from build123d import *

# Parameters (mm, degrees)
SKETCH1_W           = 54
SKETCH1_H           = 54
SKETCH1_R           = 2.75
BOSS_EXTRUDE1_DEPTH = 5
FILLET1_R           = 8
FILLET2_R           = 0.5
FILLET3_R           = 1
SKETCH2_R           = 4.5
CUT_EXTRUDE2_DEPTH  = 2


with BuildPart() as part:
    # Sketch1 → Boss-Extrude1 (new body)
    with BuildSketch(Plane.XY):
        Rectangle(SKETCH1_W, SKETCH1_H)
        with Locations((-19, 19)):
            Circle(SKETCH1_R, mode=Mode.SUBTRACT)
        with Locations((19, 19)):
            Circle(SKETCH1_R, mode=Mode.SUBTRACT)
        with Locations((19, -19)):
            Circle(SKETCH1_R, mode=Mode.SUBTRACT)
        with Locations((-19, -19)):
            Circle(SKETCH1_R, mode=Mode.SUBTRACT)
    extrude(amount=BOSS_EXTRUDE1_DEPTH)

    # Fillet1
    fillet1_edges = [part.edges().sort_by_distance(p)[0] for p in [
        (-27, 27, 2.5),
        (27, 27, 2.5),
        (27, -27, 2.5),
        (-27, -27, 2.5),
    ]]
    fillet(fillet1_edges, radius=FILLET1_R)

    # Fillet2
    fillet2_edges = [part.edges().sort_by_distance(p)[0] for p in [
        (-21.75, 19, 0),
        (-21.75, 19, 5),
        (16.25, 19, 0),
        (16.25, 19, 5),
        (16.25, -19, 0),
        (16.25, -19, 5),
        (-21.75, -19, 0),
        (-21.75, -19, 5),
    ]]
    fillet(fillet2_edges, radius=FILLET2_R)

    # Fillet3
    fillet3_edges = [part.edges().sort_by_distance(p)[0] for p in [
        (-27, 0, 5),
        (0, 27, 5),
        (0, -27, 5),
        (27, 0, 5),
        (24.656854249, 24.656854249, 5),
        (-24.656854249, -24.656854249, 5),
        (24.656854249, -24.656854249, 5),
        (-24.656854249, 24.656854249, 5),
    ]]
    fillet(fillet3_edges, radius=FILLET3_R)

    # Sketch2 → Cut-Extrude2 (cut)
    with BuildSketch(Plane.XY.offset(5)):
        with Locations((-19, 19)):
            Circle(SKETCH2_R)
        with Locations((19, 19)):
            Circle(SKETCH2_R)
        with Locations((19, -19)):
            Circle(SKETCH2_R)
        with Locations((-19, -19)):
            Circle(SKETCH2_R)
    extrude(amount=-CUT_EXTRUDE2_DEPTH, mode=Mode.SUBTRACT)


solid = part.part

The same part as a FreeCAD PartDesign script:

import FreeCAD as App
import Part
import Sketcher

V = App.Vector


def edges_at(feature, points):
    """Names of the edges that pass closest to the given points."""
    edges = feature.Shape.Edges
    near = lambda p: min(range(len(edges)), key=lambda i: edges[i].distToShape(Part.Vertex(*p))[0])
    return sorted({f"Edge{near(p) + 1}" for p in points})

doc = App.newDocument("Part")
params = doc.addObject("Spreadsheet::Sheet", "Params")
for row, (alias, value) in enumerate([
    ("sketch1_diameter", "5.5 mm"),
    ("sketch1_width", "54 mm"),
    ("pad1_length", "5 mm"),
    ("fillet_radius", "8 mm"),
    ("fillet2_radius", "0.5 mm"),
    ("fillet3_radius", "1 mm"),
    ("sketch2_diameter", "9 mm"),
    ("pocket1_length", "2 mm"),
], start=1):
    params.set(f"A{row}", alias)
    params.set(f"B{row}", "=" + value)
    params.setAlias(f"B{row}", alias)

body = doc.addObject("PartDesign::Body", "Body")

# Sketch on XY plane
sketch1 = body.newObject("Sketcher::SketchObject", "Sketch")
sketch1.AttachmentSupport = (doc.getObject("XY_Plane"), [""])
sketch1.MapMode = "FlatFace"
sketch1.addGeometry([
    Part.LineSegment(V(-27, 27, 0), V(-27, -27, 0)),  # 0
    Part.LineSegment(V(-27, -27, 0), V(27, -27, 0)),  # 1
    Part.LineSegment(V(27, -27, 0), V(27, 27, 0)),  # 2
    Part.LineSegment(V(27, 27, 0), V(-27, 27, 0)),  # 3
    Part.Circle(V(-19, -19, 0), V(0, 0, 1), 2.8),  # 4
    Part.Circle(V(19, -19, 0), V(0, 0, 1), 2.8),  # 5
    Part.Circle(V(-19, 19, 0), V(0, 0, 1), 2.8),  # 6
    Part.Circle(V(19, 19, 0), V(0, 0, 1), 2.8),  # 7
], False)
sketch1.addConstraint([
    Sketcher.Constraint("Coincident", 0, 2, 1, 1),
    Sketcher.Constraint("Coincident", 1, 2, 2, 1),
    Sketcher.Constraint("Coincident", 2, 2, 3, 1),
    Sketcher.Constraint("Coincident", 3, 2, 0, 1),
    Sketcher.Constraint("Vertical", 0),
    Sketcher.Constraint("Horizontal", 1),
    Sketcher.Constraint("Vertical", 2),
    Sketcher.Constraint("Horizontal", 3),
    Sketcher.Constraint("Equal", 4, 5),
    Sketcher.Constraint("Equal", 5, 6),
    Sketcher.Constraint("Equal", 6, 7),
    Sketcher.Constraint("Symmetric", 5, 3, 6, 3, -1, 1),
    Sketcher.Constraint("Symmetric", 4, 3, 7, 3, -1, 1),
    Sketcher.Constraint("Symmetric", 0, 2, 2, 2, -1, 1),
    Sketcher.Constraint("Symmetric", 4, 3, 5, 3, -2),
    Sketcher.Constraint("Equal", 3, 0),
    Sketcher.Constraint("Diameter", 4, 5.5),
    Sketcher.Constraint("DistanceX", 1, 1, 1, 2, 54.0),
    Sketcher.Constraint("DistanceX", 4, 3, -1, 1, 19.0),
    Sketcher.Constraint("DistanceY", 4, 3, -1, 1, 19.0),
])
sketch1.setExpression("Constraints[16]", "Params.sketch1_diameter")
sketch1.setExpression("Constraints[17]", "Params.sketch1_width")
pad1 = body.newObject("PartDesign::Pad", "Pad")
pad1.Profile = sketch1
pad1.setExpression("Length", "Params.pad1_length")
doc.recompute()

fillet = body.newObject("PartDesign::Fillet", "Fillet")
fillet.Base = (pad1, edges_at(pad1, [
    (-27, 27, 2.5),
    (27, 27, 2.5),
    (27, -27, 2.5),
    (-27, -27, 2.5),
]))
fillet.setExpression("Radius", "Params.fillet_radius")
doc.recompute()

fillet2 = body.newObject("PartDesign::Fillet", "Fillet001")
fillet2.Base = (fillet, edges_at(fillet, [
    (-21.75, 19, 0),
    (-21.75, 19, 5),
    (16.25, 19, 0),
    (16.25, 19, 5),
    (16.25, -19, 0),
    (16.25, -19, 5),
    (-21.75, -19, 0),
    (-21.75, -19, 5),
]))
fillet2.setExpression("Radius", "Params.fillet2_radius")
doc.recompute()

fillet3 = body.newObject("PartDesign::Fillet", "Fillet002")
fillet3.Base = (fillet2, edges_at(fillet2, [
    (-27, 0, 5),
    (0, 27, 5),
    (0, -27, 5),
    (27, 0, 5),
    (24.657, 24.657, 5),
    (-24.657, -24.657, 5),
    (24.657, -24.657, 5),
    (-24.657, 24.657, 5),
]))
fillet3.setExpression("Radius", "Params.fillet3_radius")

# Sketch on XY plane
sketch2 = body.newObject("Sketcher::SketchObject", "Sketch001")
sketch2.AttachmentSupport = (doc.getObject("XY_Plane"), [""])
sketch2.MapMode = "FlatFace"
sketch2.AttachmentOffset = App.Placement(V(0, 0, 5), App.Rotation())
sketch2.addGeometry([
    Part.Circle(V(-19, 19, 0), V(0, 0, 1), 4.5),
    Part.Circle(V(19, 19, 0), V(0, 0, 1), 4.5),
    Part.Circle(V(19, -19, 0), V(0, 0, 1), 4.5),
    Part.Circle(V(-19, -19, 0), V(0, 0, 1), 4.5),
], False)
sketch2.addConstraint([
    Sketcher.Constraint("Equal", 0, 1),
    Sketcher.Constraint("Equal", 1, 2),
    Sketcher.Constraint("Equal", 2, 3),
    Sketcher.Constraint("Symmetric", 0, 3, 2, 3, -1, 1),
    Sketcher.Constraint("Symmetric", 1, 3, 3, 3, -1, 1),
    Sketcher.Constraint("Symmetric", 0, 3, 1, 3, -2),
    Sketcher.Constraint("Diameter", 0, 9.0),
    Sketcher.Constraint("DistanceX", 0, 3, -1, 1, 19.0),
    Sketcher.Constraint("DistanceY", -1, 1, 0, 3, 19.0),
])
sketch2.setExpression("Constraints[6]", "Params.sketch2_diameter")
pocket1 = body.newObject("PartDesign::Pocket", "Pocket")
pocket1.Profile = sketch2
pocket1.setExpression("Length", "Params.pocket1_length")

doc.recompute()
